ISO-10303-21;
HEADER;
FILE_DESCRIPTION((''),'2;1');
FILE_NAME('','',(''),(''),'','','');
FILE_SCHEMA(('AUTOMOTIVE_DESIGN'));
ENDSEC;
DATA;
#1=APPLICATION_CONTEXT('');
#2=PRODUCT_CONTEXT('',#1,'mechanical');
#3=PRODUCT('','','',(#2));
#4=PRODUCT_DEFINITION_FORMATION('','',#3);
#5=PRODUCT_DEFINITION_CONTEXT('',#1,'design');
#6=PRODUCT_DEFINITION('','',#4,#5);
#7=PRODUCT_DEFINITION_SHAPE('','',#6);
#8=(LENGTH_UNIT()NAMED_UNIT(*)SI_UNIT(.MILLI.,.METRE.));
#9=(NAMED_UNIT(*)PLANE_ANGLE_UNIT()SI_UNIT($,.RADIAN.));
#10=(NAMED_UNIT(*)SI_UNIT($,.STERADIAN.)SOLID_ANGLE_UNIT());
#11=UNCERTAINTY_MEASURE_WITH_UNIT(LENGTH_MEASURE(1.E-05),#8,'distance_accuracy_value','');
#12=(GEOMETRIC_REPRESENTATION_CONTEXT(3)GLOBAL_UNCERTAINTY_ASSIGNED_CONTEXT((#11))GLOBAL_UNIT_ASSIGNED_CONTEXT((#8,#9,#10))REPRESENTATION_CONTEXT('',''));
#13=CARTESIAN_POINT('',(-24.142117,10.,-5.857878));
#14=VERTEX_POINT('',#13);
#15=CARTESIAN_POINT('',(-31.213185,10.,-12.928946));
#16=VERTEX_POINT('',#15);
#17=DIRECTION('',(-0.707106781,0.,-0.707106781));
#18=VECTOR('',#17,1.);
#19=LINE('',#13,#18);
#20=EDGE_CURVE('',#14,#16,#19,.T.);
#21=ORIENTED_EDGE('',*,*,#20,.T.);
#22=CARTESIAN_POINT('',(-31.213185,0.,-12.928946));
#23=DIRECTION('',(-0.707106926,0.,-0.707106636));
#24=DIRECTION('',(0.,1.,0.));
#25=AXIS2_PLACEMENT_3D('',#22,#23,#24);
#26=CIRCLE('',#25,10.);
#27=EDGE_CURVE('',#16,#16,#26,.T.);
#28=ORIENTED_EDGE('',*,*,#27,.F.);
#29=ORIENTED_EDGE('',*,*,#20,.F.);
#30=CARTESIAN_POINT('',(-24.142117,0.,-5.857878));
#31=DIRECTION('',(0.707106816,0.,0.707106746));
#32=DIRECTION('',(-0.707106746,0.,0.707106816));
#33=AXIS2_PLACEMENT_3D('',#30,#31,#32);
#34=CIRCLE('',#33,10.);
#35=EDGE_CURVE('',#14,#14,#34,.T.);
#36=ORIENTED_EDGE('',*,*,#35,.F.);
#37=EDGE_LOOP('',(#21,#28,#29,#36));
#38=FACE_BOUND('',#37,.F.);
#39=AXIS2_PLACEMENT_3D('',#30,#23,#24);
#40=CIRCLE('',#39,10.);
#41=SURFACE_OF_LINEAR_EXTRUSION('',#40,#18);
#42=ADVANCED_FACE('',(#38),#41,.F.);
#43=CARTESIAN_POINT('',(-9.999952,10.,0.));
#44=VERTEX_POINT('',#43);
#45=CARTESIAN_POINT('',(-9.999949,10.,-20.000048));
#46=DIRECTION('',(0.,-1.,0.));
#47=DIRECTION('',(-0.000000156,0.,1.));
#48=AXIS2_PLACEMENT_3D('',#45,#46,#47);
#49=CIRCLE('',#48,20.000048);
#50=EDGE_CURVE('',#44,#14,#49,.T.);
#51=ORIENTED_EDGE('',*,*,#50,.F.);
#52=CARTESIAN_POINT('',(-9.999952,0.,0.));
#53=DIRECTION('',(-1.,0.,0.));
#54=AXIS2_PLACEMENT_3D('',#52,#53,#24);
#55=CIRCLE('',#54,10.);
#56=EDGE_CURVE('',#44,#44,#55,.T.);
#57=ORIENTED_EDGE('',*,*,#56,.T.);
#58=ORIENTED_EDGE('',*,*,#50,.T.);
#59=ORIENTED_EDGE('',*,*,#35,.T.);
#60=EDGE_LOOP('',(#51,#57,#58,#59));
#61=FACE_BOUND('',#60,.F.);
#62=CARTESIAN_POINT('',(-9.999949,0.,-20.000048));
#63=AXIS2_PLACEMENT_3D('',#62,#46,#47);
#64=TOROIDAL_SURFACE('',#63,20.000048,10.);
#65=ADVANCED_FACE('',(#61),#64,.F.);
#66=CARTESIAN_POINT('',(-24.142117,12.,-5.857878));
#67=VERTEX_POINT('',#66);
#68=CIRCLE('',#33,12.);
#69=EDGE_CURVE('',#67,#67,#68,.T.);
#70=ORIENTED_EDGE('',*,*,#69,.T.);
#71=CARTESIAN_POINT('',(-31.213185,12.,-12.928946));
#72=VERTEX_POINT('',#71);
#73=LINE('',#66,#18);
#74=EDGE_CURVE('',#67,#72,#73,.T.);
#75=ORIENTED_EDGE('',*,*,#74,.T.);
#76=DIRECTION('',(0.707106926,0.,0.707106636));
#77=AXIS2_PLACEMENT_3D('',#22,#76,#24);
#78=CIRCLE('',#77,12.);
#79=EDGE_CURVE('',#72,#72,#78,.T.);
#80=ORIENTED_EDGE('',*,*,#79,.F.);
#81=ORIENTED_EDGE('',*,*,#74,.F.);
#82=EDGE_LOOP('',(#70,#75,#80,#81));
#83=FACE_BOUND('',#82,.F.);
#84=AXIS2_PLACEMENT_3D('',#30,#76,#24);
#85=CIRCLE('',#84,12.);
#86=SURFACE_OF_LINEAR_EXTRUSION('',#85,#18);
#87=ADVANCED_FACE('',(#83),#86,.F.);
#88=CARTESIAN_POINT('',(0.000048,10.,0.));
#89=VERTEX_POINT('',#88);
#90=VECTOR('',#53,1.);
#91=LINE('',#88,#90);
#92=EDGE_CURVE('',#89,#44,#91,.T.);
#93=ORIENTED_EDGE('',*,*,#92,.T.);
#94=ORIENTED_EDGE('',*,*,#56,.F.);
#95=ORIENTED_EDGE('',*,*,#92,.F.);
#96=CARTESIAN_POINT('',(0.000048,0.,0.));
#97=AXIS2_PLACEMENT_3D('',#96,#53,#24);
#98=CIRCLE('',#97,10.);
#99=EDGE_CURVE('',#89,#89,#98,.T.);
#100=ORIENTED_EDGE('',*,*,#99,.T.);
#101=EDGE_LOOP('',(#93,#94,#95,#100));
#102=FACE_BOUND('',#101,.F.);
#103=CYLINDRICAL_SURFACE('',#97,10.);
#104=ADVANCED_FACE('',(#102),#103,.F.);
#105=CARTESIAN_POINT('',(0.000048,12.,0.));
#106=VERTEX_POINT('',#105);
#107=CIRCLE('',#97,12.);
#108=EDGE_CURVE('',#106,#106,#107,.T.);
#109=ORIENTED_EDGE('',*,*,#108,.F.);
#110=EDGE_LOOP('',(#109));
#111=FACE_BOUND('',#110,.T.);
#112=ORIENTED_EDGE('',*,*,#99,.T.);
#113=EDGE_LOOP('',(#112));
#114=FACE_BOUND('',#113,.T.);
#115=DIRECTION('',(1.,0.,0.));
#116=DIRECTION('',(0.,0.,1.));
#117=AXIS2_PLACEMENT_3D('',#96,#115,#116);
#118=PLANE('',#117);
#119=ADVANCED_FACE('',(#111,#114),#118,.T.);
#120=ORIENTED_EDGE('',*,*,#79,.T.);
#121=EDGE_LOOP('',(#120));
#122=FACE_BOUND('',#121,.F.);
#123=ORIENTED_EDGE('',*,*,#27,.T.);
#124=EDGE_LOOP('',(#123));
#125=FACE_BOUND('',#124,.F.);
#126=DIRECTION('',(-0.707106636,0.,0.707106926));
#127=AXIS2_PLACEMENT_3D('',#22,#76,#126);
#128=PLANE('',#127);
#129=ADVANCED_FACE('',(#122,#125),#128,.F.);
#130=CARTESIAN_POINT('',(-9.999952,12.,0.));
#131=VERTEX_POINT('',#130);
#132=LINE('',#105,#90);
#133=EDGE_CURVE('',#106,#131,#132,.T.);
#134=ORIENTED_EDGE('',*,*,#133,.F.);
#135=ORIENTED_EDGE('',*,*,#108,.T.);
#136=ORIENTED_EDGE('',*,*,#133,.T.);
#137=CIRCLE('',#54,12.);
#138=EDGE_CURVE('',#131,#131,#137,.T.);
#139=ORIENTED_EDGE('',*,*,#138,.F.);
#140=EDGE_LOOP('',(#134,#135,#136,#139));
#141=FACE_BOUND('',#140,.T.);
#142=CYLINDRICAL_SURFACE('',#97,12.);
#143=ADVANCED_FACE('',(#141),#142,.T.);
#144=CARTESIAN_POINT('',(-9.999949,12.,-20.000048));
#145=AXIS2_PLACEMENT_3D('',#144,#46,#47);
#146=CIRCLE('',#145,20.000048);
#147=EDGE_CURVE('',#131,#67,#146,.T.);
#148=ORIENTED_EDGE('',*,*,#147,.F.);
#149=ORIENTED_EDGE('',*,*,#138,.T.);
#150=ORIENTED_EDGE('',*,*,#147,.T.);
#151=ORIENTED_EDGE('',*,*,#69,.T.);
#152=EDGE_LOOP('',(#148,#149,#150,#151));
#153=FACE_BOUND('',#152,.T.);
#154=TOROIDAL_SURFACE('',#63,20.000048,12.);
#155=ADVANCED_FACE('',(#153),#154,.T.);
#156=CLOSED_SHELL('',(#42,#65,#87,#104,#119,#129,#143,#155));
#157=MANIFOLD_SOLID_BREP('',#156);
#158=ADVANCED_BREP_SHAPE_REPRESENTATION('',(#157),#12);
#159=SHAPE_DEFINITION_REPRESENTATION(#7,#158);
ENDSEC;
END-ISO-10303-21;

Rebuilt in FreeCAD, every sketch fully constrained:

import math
import FreeCAD as App
import Part
import Sketcher
Q = App.Units.Quantity

doc = App.newDocument("Part")
body = doc.addObject("PartDesign::Body", "Body")

sketch1 = body.newObject("Sketcher::SketchObject", "Sketch")
sketch1.AttachmentSupport = (doc.getObject("YZ_Plane"), [""])
sketch1.MapMode = "FlatFace"
sketch1.addGeometry(Part.Circle(App.Vector(0, 0, 0), App.Vector(0, 0, 1), 12), False)
sketch1.addGeometry(Part.Circle(App.Vector(0, 0, 0), App.Vector(0, 0, 1), 10), False)
sketch1.addConstraint(Sketcher.Constraint("Coincident", 0, 3, -1, 1))
sketch1.addConstraint(Sketcher.Constraint("Coincident", 1, 3, -1, 1))
sketch1.addConstraint(Sketcher.Constraint("Diameter", 0, Q("24 mm")))
sketch1.addConstraint(Sketcher.Constraint("Diameter", 1, Q("20 mm")))

sketch2 = body.newObject("Sketcher::SketchObject", "Sketch001")
sketch2.AttachmentSupport = (doc.getObject("XZ_Plane"), [""])
sketch2.MapMode = "FlatFace"
sketch2.addGeometry(Part.LineSegment(App.Vector(0.000048, -0.000043, 0), App.Vector(-9.999952, -0.000043, 0)), False)
sketch2.addGeometry(Part.ArcOfCircle(Part.Circle(App.Vector(-9.999949, -20.000048, 0), App.Vector(0, 0, 1), 20.000005), math.radians(90.000009), math.radians(134.999997)), False)
sketch2.addGeometry(Part.LineSegment(App.Vector(-24.142087, -5.857908, 0), App.Vector(-31.213155, -12.928976, 0)), False)
sketch2.addConstraint(Sketcher.Constraint("Tangent", 0, 2, 1, 1))
sketch2.addConstraint(Sketcher.Constraint("Tangent", 1, 2, 2, 1))
sketch2.addConstraint(Sketcher.Constraint("Horizontal", 0))
sketch2.addConstraint(Sketcher.Constraint("DistanceX", 0, 2, 0, 1, Q("10 mm")))
sketch2.addConstraint(Sketcher.Constraint("Angle", 2, Q("-135 deg")))
sketch2.addConstraint(Sketcher.Constraint("Distance", 2, Q("10 mm")))
sketch2.addConstraint(Sketcher.Constraint("Radius", 1, Q("20.000005 mm")))
sketch2.addConstraint(Sketcher.Constraint("DistanceX", 1, 3, -1, 1, Q("9.999949 mm")))
sketch2.addConstraint(Sketcher.Constraint("DistanceY", 1, 3, -1, 1, Q("20.000048 mm")))
doc.recompute()

additivepipe = body.newObject("PartDesign::AdditivePipe", "AdditivePipe")
additivepipe.Profile = sketch1
additivepipe.Spine = (sketch2, ["Edge1", "Edge2", "Edge3"])

doc.recompute()
